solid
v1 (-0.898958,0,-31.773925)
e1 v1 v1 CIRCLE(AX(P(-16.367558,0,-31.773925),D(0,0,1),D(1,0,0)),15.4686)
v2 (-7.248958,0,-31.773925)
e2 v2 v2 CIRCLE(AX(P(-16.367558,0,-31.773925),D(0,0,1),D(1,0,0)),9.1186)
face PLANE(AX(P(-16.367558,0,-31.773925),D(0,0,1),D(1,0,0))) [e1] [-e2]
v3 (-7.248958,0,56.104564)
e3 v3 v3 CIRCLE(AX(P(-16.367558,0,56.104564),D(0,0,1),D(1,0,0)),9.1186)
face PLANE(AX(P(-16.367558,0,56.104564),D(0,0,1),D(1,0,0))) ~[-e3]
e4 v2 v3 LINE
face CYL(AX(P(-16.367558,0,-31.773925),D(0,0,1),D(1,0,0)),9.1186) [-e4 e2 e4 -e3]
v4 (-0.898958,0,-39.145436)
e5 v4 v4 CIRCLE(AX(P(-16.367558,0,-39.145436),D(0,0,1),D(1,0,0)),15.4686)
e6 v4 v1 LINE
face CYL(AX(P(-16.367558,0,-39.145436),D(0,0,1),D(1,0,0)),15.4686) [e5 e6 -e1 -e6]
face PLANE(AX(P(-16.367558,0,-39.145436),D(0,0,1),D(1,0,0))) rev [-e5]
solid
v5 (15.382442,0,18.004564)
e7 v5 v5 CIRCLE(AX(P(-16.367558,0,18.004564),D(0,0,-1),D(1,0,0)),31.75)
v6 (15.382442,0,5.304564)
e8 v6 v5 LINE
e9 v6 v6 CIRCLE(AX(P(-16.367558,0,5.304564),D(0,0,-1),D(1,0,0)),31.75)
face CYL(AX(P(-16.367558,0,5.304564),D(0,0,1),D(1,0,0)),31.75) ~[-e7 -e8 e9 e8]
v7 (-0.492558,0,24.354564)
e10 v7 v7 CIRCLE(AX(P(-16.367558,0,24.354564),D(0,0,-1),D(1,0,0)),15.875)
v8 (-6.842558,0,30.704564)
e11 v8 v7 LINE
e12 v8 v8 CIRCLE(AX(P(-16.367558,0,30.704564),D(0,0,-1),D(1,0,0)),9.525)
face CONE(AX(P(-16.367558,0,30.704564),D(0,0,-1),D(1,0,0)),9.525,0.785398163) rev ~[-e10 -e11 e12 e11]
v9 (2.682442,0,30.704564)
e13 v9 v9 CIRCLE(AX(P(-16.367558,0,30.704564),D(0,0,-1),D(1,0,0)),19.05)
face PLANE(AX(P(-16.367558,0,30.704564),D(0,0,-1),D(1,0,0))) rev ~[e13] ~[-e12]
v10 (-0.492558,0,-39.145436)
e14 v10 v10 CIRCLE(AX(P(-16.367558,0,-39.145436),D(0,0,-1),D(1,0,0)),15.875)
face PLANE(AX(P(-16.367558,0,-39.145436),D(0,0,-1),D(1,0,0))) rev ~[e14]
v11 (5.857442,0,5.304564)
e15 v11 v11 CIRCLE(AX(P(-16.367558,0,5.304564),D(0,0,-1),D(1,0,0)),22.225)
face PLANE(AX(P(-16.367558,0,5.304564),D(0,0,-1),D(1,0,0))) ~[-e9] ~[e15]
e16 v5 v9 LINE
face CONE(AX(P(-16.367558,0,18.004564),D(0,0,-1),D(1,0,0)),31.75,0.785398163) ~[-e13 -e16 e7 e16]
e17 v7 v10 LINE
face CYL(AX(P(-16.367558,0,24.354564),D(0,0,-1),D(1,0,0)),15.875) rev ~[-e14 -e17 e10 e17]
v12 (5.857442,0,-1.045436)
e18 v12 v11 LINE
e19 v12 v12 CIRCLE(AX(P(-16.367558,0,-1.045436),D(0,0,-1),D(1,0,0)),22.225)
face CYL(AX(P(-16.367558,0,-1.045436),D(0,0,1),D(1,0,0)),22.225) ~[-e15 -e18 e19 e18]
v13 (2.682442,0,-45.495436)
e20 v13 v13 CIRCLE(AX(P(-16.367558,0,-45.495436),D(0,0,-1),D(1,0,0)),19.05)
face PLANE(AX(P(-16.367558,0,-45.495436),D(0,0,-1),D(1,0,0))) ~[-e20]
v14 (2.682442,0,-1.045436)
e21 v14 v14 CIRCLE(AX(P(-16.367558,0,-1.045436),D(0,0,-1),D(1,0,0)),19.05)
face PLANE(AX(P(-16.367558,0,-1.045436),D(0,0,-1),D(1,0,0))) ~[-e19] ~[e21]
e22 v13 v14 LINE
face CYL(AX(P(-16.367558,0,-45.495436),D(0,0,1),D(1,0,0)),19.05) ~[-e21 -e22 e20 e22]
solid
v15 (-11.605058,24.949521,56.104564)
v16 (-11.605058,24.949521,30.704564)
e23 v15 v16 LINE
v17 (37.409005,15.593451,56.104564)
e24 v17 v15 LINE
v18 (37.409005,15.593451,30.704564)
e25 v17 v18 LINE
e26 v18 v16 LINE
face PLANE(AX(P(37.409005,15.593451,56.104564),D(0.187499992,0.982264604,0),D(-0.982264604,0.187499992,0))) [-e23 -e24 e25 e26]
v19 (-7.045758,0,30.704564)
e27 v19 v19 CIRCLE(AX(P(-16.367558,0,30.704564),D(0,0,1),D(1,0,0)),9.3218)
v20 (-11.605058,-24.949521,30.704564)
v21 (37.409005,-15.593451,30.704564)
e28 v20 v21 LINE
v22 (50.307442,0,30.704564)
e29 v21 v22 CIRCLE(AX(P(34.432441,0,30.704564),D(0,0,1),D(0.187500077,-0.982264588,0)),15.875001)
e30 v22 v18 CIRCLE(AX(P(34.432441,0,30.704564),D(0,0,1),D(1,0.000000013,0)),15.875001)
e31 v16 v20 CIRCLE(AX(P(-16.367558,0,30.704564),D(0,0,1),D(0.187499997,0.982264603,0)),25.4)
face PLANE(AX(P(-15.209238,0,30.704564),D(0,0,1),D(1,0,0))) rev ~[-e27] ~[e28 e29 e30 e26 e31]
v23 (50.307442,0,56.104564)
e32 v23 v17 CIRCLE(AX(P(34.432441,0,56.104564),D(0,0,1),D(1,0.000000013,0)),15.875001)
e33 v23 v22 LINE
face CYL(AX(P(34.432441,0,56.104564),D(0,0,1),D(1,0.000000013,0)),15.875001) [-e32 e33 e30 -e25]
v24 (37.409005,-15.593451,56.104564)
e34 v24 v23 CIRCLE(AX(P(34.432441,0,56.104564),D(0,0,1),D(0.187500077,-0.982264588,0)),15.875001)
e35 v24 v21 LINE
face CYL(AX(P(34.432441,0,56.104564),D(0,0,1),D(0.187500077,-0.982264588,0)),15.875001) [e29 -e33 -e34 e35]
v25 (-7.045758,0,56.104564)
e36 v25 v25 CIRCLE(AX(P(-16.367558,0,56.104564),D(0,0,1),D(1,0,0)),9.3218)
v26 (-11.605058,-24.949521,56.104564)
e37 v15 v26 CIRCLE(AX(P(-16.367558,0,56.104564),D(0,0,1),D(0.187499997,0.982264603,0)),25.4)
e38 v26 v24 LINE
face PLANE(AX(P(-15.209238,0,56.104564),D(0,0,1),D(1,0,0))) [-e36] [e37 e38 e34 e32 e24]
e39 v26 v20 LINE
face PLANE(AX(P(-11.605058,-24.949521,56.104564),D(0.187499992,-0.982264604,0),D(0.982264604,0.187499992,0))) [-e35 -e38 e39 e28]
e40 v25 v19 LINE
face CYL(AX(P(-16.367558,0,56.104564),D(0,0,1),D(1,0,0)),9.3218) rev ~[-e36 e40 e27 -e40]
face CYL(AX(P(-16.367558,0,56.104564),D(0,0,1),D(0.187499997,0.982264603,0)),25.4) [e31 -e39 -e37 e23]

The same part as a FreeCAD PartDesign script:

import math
import FreeCAD as App
import Part
import Sketcher

V = App.Vector
Q = App.Units.Quantity

doc = App.newDocument("Part")
body = doc.addObject("PartDesign::Body", "Body")

sketch1 = body.newObject("Sketcher::SketchObject", "Sketch")
sketch1.AttachmentSupport = (doc.getObject("XZ_Plane"), [""])
sketch1.MapMode = "FlatFace"
sketch1.addGeometry(Part.LineSegment(V(2.682442, 30.704564, 0), V(-6.842558, 30.704564, 0)), False)
sketch1.addGeometry(Part.LineSegment(V(-6.842558, 30.704564, 0), V(-0.492558, 24.354564, 0)), False)
sketch1.addGeometry(Part.LineSegment(V(-0.492558, 24.354564, 0), V(-0.492558, -39.145436, 0)), False)
sketch1.addGeometry(Part.LineSegment(V(-0.492558, -39.145436, 0), V(-16.367558, -39.145436, 0)), False)
sketch1.addGeometry(Part.LineSegment(V(-16.367558, -39.145436, 0), V(-16.367558, -45.495436, 0)), False)
sketch1.addGeometry(Part.LineSegment(V(-16.367558, -45.495436, 0), V(2.682442, -45.495436, 0)), False)
sketch1.addGeometry(Part.LineSegment(V(2.682442, -45.495436, 0), V(2.682442, -1.045436, 0)), False)
sketch1.addGeometry(Part.LineSegment(V(2.682442, -1.045436, 0), V(5.857442, -1.045436, 0)), False)
sketch1.addGeometry(Part.LineSegment(V(5.857442, -1.045436, 0), V(5.857442, 5.304564, 0)), False)
sketch1.addGeometry(Part.LineSegment(V(5.857442, 5.304564, 0), V(15.382442, 5.304564, 0)), False)
sketch1.addGeometry(Part.LineSegment(V(15.382442, 5.304564, 0), V(15.382442, 18.004564, 0)), False)
sketch1.addGeometry(Part.LineSegment(V(15.382442, 18.004564, 0), V(2.682442, 30.704564, 0)), False)
sketch1.addGeometry(Part.LineSegment(V(-16.367558, 30.704564, 0), V(-16.367558, -45.495436, 0)), True)
sketch1.addConstraint(Sketcher.Constraint("Coincident", 0, 2, 1, 1))
sketch1.addConstraint(Sketcher.Constraint("Coincident", 1, 2, 2, 1))
sketch1.addConstraint(Sketcher.Constraint("Coincident", 2, 2, 3, 1))
sketch1.addConstraint(Sketcher.Constraint("Coincident", 3, 2, 4, 1))
sketch1.addConstraint(Sketcher.Constraint("Coincident", 4, 2, 5, 1))
sketch1.addConstraint(Sketcher.Constraint("Coincident", 5, 2, 6, 1))
sketch1.addConstraint(Sketcher.Constraint("Coincident", 6, 2, 7, 1))
sketch1.addConstraint(Sketcher.Constraint("Coincident", 7, 2, 8, 1))
sketch1.addConstraint(Sketcher.Constraint("Coincident", 8, 2, 9, 1))
sketch1.addConstraint(Sketcher.Constraint("Coincident", 9, 2, 10, 1))
sketch1.addConstraint(Sketcher.Constraint("Coincident", 10, 2, 11, 1))
sketch1.addConstraint(Sketcher.Constraint("Coincident", 11, 2, 0, 1))
sketch1.addConstraint(Sketcher.Constraint("Horizontal", 0))
sketch1.addConstraint(Sketcher.Constraint("Vertical", 2))
sketch1.addConstraint(Sketcher.Constraint("Horizontal", 3))
sketch1.addConstraint(Sketcher.Constraint("Vertical", 4))
sketch1.addConstraint(Sketcher.Constraint("Horizontal", 5))
sketch1.addConstraint(Sketcher.Constraint("Vertical", 6))
sketch1.addConstraint(Sketcher.Constraint("Horizontal", 7))
sketch1.addConstraint(Sketcher.Constraint("Vertical", 8))
sketch1.addConstraint(Sketcher.Constraint("Horizontal", 9))
sketch1.addConstraint(Sketcher.Constraint("Vertical", 10))
sketch1.addConstraint(Sketcher.Constraint("Vertical", 12))
sketch1.addConstraint(Sketcher.Constraint("Coincident", 12, 2, 4, 2))
sketch1.addConstraint(Sketcher.Constraint("Parallel", 1, 11))
sketch1.addConstraint(Sketcher.Constraint("Horizontal", 11, 2, 12, 1))
sketch1.addConstraint(Sketcher.Constraint("Vertical", 6, 2, 11, 2))
sketch1.addConstraint(Sketcher.Constraint("Equal", 0, 9))
sketch1.addConstraint(Sketcher.Constraint("Equal", 4, 8))
sketch1.addConstraint(Sketcher.Constraint("DistanceY", 12, 2, 12, 1, Q("3 in")))
sketch1.addConstraint(Sketcher.Constraint("DistanceY", 2, 2, 2, 1, Q("2.5 in")))
sketch1.addConstraint(Sketcher.Constraint("DistanceY", 10, 1, 10, 2, Q("0.5 in")))
sketch1.addConstraint(Sketcher.Constraint("Angle", 1, Q("-45 deg")))
sketch1.addConstraint(Sketcher.Constraint("DistanceY", 6, 2, 1, 2, Q("1 in")))
sketch1.addConstraint(Sketcher.Constraint("DistanceY", 8, 2, 0, 2, Q("1 in")))
sketch1.addConstraint(Sketcher.Constraint("DistanceX", 5, 1, 5, 2, Q("0.75 in")))
sketch1.addConstraint(Sketcher.Constraint("DistanceX", 0, 2, 0, 1, Q("0.375 in")))
sketch1.addConstraint(Sketcher.Constraint("DistanceX", 0, 2, -1, 1, 6.842558))
sketch1.addConstraint(Sketcher.Constraint("DistanceY", -1, 1, 0, 2, 30.704564))
revolution = body.newObject("PartDesign::Revolution", "Revolution")
revolution.Profile = sketch1
revolution.ReferenceAxis = (sketch1, ["Axis0"])
revolution.Angle = 360
body2 = doc.addObject("PartDesign::Body", "Body001")

sketch2 = body2.newObject("Sketcher::SketchObject", "Sketch001")
sketch2.AttachmentSupport = (doc.getObject("XZ_Plane001"), [""])
sketch2.MapMode = "FlatFace"
sketch2.addGeometry(Part.LineSegment(V(-16.367558, 56.104564, 0), V(-16.367558, -39.145436, 0)), False)
sketch2.addGeometry(Part.LineSegment(V(-16.367558, -39.145436, 0), V(-0.898958, -39.145436, 0)), False)
sketch2.addGeometry(Part.LineSegment(V(-0.898958, -39.145436, 0), V(-0.898958, -31.773925, 0)), False)
sketch2.addGeometry(Part.LineSegment(V(-0.898958, -31.773925, 0), V(-7.248958, -31.773925, 0)), False)
sketch2.addGeometry(Part.LineSegment(V(-7.248958, -31.773925, 0), V(-7.248958, 56.104564, 0)), False)
sketch2.addGeometry(Part.LineSegment(V(-7.248958, 56.104564, 0), V(-16.367558, 56.104564, 0)), False)
sketch2.addGeometry(Part.LineSegment(V(-16.367558, -39.145436, 0), V(-16.367558, 56.104564, 0)), True)
sketch2.addConstraint(Sketcher.Constraint("Coincident", 0, 2, 1, 1))
sketch2.addConstraint(Sketcher.Constraint("Coincident", 1, 2, 2, 1))
sketch2.addConstraint(Sketcher.Constraint("Coincident", 2, 2, 3, 1))
sketch2.addConstraint(Sketcher.Constraint("Coincident", 3, 2, 4, 1))
sketch2.addConstraint(Sketcher.Constraint("Coincident", 4, 2, 5, 1))
sketch2.addConstraint(Sketcher.Constraint("Coincident", 5, 2, 0, 1))
sketch2.addConstraint(Sketcher.Constraint("Vertical", 0))
sketch2.addConstraint(Sketcher.Constraint("Horizontal", 1))
sketch2.addConstraint(Sketcher.Constraint("Vertical", 2))
sketch2.addConstraint(Sketcher.Constraint("Horizontal", 3))
sketch2.addConstraint(Sketcher.Constraint("Vertical", 4))
sketch2.addConstraint(Sketcher.Constraint("Horizontal", 5))
sketch2.addConstraint(Sketcher.Constraint("Vertical", 6))
sketch2.addConstraint(Sketcher.Constraint("Coincident", 6, 1, 0, 2))
sketch2.addConstraint(Sketcher.Constraint("Horizontal", 4, 2, 6, 2))
sketch2.addConstraint(Sketcher.Constraint("DistanceX", 3, 2, 3, 1, Q("0.25 in")))
sketch2.addConstraint(Sketcher.Constraint("DistanceY", 0, 2, 0, 1, Q("3.75 in")))
sketch2.addConstraint(Sketcher.Constraint("DistanceX", 1, 1, 1, 2, Q("0.609 in")))
sketch2.addConstraint(Sketcher.Constraint("DistanceY", 2, 1, 2, 2, 7.371511))
sketch2.addConstraint(Sketcher.Constraint("DistanceX", 1, 2, -1, 1, 0.898958))
sketch2.addConstraint(Sketcher.Constraint("DistanceY", 0, 2, -1, 1, 39.145436))
revolution2 = body2.newObject("PartDesign::Revolution", "Revolution001")
revolution2.Profile = sketch2
revolution2.ReferenceAxis = (sketch2, ["Axis0"])
revolution2.Angle = 360
body3 = doc.addObject("PartDesign::Body", "Body002")

sketch3 = body3.newObject("Sketcher::SketchObject", "Sketch002")
sketch3.AttachmentSupport = (doc.getObject("XY_Plane002"), [""])
sketch3.MapMode = "FlatFace"
sketch3.AttachmentOffset = App.Placement(V(0, 0, 56.104564), App.Rotation())
sketch3.addGeometry(Part.ArcOfCircle(Part.Circle(V(-16.367558, 0, 0), V(0, 0, 1), 25.4), math.radians(79.193077), math.radians(280.806923)), False)
sketch3.addGeometry(Part.LineSegment(V(-11.605058, -24.949521, 0), V(37.409005, -15.593451, 0)), False)
sketch3.addGeometry(Part.ArcOfCircle(Part.Circle(V(34.432441, 0, 0), V(0, 0, 1), 15.875001), math.radians(-79.193073), math.radians(-0.000001)), False)
sketch3.addGeometry(Part.ArcOfCircle(Part.Circle(V(34.432441, 0, 0), V(0, 0, 1), 15.875001), math.radians(0.000001), math.radians(79.193073)), False)
sketch3.addGeometry(Part.LineSegment(V(37.409005, 15.593451, 0), V(-11.605058, 24.949521, 0)), False)
sketch3.addGeometry(Part.Circle(V(-16.367558, 0, 0), V(0, 0, 1), 9.3218), False)
sketch3.addConstraint(Sketcher.Constraint("Tangent", 0, 2, 1, 1))
sketch3.addConstraint(Sketcher.Constraint("Tangent", 1, 2, 2, 1))
sketch3.addConstraint(Sketcher.Constraint("Tangent", 2, 2, 3, 1))
sketch3.addConstraint(Sketcher.Constraint("Tangent", 3, 2, 4, 1))
sketch3.addConstraint(Sketcher.Constraint("Tangent", 4, 2, 0, 1))
sketch3.addConstraint(Sketcher.Constraint("Coincident", 5, 3, 0, 3))
sketch3.addConstraint(Sketcher.Constraint("Equal", 2, 3))
sketch3.addConstraint(Sketcher.Constraint("Symmetric", 1, 2, 3, 2, -1))
sketch3.addConstraint(Sketcher.Constraint("PointOnObject", 2, 2, -1))
sketch3.addConstraint(Sketcher.Constraint("Radius", 0, Q("1 in")))
sketch3.addConstraint(Sketcher.Constraint("Diameter", 5, Q("0.734 in")))
sketch3.addConstraint(Sketcher.Constraint("Radius", 2, Q("0.625 in")))
sketch3.addConstraint(Sketcher.Constraint("DistanceX", 0, 3, 2, 3, Q("2 in")))
sketch3.addConstraint(Sketcher.Constraint("DistanceX", -1, 1, 2, 3, 34.432441))
pad1 = body3.newObject("PartDesign::Pad", "Pad")
pad1.Profile = sketch3
pad1.Length = Q("1 in")
pad1.Reversed = True

doc.recompute()
